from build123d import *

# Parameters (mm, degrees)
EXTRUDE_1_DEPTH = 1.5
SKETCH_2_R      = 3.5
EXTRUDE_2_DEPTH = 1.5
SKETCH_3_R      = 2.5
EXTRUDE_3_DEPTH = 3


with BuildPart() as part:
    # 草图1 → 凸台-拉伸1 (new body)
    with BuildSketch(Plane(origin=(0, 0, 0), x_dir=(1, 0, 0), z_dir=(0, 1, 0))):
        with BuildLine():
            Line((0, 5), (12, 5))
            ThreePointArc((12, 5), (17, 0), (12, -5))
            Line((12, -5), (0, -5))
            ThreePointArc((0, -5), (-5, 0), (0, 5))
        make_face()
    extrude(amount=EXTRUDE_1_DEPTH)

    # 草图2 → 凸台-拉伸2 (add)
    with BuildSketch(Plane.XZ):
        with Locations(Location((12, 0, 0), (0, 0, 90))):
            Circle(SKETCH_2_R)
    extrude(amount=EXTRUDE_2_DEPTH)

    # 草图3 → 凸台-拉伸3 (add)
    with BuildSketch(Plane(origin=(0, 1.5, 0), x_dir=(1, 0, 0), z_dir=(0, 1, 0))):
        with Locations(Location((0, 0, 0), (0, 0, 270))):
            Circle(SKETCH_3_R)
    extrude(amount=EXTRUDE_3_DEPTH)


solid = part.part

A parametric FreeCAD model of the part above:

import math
import FreeCAD as App
import Part
import Sketcher

V = App.Vector
Q = App.Units.Quantity

doc = App.newDocument("Part")
body = doc.addObject("PartDesign::Body", "Body")

# Sketch on XZ plane
sketch1 = body.newObject("Sketcher::SketchObject", "Sketch")
sketch1.AttachmentSupport = (doc.getObject("XZ_Plane"), [""])
sketch1.MapMode = "FlatFace"
sketch1.addGeometry(Part.LineSegment(V(12, -5, 0), V(0, -5, 0)), False)
sketch1.addGeometry(Part.ArcOfCircle(Part.Circle(V(0, 0, 0), V(0, 0, 1), 5), math.radians(90), math.radians(270)), False)
sketch1.addGeometry(Part.LineSegment(V(0, 5, 0), V(12, 5, 0)), False)
sketch1.addGeometry(Part.ArcOfCircle(Part.Circle(V(12, 0, 0), V(0, 0, 1), 5), math.radians(-90), math.radians(90)), False)
sketch1.addConstraint(Sketcher.Constraint("Tangent", 0, 2, 1, 2))
sketch1.addConstraint(Sketcher.Constraint("Tangent", 1, 1, 2, 1))
sketch1.addConstraint(Sketcher.Constraint("Tangent", 2, 2, 3, 2))
sketch1.addConstraint(Sketcher.Constraint("Tangent", 3, 1, 0, 1))
sketch1.addConstraint(Sketcher.Constraint("Horizontal", 0))
sketch1.addConstraint(Sketcher.Constraint("Horizontal", 2))
sketch1.addConstraint(Sketcher.Constraint("Coincident", 1, 3, -1, 1))
sketch1.addConstraint(Sketcher.Constraint("Radius", 1, Q("5 mm")))
sketch1.addConstraint(Sketcher.Constraint("DistanceX", 0, 2, 0, 1, Q("12 mm")))
pad1 = body.newObject("PartDesign::Pad", "Pad")
pad1.Profile = sketch1
pad1.Length = 1.5
pad1.Reversed = True

# Sketch on XZ plane
sketch2 = body.newObject("Sketcher::SketchObject", "Sketch001")
sketch2.AttachmentSupport = (doc.getObject("XZ_Plane"), [""])
sketch2.MapMode = "FlatFace"
sketch2.addGeometry(Part.Circle(V(12, 0, 0), V(0, 0, 1), 3.5), False)
sketch2.addConstraint(Sketcher.Constraint("PointOnObject", 0, 3, -1))
sketch2.addConstraint(Sketcher.Constraint("Diameter", 0, Q("7 mm")))
sketch2.addConstraint(Sketcher.Constraint("DistanceX", -1, 1, 0, 3, Q("12 mm")))
pad2 = body.newObject("PartDesign::Pad", "Pad001")
pad2.Profile = sketch2
pad2.Length = 1.5

# Sketch on XZ plane
sketch3 = body.newObject("Sketcher::SketchObject", "Sketch002")
sketch3.AttachmentSupport = (doc.getObject("XZ_Plane"), [""])
sketch3.MapMode = "FlatFace"
sketch3.AttachmentOffset = App.Placement(V(0, 0, -1.5), App.Rotation())
sketch3.addGeometry(Part.Circle(V(0, 0, 0), V(0, 0, 1), 2.5), False)
sketch3.addConstraint(Sketcher.Constraint("Coincident", 0, 3, -1, 1))
sketch3.addConstraint(Sketcher.Constraint("Diameter", 0, Q("5 mm")))
pad3 = body.newObject("PartDesign::Pad", "Pad002")
pad3.Profile = sketch3
pad3.Length = 3
pad3.Reversed = True

doc.recompute()
